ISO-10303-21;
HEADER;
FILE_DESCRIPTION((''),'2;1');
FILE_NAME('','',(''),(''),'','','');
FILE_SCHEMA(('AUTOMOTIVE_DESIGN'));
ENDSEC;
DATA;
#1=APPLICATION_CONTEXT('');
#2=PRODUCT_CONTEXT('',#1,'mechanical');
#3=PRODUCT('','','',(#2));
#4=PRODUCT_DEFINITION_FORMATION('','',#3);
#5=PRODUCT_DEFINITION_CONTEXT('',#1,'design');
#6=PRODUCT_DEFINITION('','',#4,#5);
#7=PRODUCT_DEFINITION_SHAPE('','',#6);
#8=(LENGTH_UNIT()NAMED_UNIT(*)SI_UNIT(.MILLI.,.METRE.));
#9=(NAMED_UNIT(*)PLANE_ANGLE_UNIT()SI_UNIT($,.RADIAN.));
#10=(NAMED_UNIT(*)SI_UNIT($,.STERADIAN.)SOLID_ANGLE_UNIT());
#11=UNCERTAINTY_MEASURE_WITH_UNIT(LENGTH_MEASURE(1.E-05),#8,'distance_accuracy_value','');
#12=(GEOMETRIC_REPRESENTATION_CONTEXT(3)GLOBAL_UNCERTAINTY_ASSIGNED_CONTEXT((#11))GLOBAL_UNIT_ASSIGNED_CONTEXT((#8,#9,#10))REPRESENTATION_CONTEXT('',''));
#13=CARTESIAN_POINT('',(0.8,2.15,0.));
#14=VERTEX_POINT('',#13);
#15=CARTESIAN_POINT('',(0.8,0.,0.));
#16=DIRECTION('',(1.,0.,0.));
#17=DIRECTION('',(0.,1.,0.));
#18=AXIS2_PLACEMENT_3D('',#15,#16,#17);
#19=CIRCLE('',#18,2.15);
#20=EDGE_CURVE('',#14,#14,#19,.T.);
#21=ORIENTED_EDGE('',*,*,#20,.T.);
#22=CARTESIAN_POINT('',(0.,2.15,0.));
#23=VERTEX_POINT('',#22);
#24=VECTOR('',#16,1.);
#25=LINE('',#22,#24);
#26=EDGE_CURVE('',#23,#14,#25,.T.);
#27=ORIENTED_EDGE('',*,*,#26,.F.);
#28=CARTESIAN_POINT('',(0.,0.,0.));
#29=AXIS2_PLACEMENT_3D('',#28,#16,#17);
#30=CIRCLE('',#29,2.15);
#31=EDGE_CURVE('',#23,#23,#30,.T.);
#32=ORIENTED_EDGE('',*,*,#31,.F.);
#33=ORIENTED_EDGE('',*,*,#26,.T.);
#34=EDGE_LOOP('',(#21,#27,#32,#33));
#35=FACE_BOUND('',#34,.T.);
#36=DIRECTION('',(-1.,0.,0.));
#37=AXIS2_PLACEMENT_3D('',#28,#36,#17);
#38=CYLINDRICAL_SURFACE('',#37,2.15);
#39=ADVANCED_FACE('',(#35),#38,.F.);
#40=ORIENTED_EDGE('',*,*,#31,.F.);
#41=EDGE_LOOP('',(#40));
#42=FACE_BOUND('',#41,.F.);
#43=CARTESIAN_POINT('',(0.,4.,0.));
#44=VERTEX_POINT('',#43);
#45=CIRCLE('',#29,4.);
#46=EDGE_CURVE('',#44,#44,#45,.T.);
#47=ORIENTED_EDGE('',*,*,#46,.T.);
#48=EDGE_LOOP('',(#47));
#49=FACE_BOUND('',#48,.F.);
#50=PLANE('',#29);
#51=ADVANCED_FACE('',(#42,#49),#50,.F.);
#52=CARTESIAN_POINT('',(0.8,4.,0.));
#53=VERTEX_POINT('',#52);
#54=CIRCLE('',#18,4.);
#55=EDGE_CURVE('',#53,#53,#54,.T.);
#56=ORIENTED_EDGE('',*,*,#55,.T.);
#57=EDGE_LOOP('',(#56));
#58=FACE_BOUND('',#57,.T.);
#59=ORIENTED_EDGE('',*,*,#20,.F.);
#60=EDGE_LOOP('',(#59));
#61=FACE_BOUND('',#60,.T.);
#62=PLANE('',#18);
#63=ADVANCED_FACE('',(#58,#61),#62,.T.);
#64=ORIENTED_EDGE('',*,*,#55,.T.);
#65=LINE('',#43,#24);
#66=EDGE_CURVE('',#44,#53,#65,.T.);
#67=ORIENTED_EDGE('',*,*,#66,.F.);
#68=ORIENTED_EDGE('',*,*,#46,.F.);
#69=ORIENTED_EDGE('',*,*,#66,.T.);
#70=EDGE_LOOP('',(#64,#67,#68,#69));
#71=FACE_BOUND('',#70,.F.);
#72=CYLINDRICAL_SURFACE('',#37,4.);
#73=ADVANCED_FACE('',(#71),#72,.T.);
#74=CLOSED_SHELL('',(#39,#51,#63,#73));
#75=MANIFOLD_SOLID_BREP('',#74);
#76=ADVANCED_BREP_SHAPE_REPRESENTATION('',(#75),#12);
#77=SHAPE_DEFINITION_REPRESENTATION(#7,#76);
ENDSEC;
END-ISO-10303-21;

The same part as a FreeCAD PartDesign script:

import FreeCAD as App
import Part
import Sketcher

doc = App.newDocument("Part")
body = doc.addObject("PartDesign::Body", "Body")

sketch1 = body.newObject("Sketcher::SketchObject", "Sketch")
sketch1.AttachmentSupport = (doc.getObject("YZ_Plane"), [""])
sketch1.MapMode = "FlatFace"
sketch1.addGeometry([
    Part.Circle(App.Vector(0, 0, 0), App.Vector(0, 0, 1), 4),
    Part.Circle(App.Vector(0, 0, 0), App.Vector(0, 0, 1), 2.1),
], False)
sketch1.addConstraint([
    Sketcher.Constraint("Coincident", 0, 3, -1, 1),
    Sketcher.Constraint("Coincident", 1, 3, -1, 1),
    Sketcher.Constraint("Diameter", 0, 8.0),
    Sketcher.Constraint("Diameter", 1, 4.3),
])
pad1 = body.newObject("PartDesign::Pad", "Pad")
pad1.Profile = sketch1
pad1.Length = 0.8

doc.recompute()
